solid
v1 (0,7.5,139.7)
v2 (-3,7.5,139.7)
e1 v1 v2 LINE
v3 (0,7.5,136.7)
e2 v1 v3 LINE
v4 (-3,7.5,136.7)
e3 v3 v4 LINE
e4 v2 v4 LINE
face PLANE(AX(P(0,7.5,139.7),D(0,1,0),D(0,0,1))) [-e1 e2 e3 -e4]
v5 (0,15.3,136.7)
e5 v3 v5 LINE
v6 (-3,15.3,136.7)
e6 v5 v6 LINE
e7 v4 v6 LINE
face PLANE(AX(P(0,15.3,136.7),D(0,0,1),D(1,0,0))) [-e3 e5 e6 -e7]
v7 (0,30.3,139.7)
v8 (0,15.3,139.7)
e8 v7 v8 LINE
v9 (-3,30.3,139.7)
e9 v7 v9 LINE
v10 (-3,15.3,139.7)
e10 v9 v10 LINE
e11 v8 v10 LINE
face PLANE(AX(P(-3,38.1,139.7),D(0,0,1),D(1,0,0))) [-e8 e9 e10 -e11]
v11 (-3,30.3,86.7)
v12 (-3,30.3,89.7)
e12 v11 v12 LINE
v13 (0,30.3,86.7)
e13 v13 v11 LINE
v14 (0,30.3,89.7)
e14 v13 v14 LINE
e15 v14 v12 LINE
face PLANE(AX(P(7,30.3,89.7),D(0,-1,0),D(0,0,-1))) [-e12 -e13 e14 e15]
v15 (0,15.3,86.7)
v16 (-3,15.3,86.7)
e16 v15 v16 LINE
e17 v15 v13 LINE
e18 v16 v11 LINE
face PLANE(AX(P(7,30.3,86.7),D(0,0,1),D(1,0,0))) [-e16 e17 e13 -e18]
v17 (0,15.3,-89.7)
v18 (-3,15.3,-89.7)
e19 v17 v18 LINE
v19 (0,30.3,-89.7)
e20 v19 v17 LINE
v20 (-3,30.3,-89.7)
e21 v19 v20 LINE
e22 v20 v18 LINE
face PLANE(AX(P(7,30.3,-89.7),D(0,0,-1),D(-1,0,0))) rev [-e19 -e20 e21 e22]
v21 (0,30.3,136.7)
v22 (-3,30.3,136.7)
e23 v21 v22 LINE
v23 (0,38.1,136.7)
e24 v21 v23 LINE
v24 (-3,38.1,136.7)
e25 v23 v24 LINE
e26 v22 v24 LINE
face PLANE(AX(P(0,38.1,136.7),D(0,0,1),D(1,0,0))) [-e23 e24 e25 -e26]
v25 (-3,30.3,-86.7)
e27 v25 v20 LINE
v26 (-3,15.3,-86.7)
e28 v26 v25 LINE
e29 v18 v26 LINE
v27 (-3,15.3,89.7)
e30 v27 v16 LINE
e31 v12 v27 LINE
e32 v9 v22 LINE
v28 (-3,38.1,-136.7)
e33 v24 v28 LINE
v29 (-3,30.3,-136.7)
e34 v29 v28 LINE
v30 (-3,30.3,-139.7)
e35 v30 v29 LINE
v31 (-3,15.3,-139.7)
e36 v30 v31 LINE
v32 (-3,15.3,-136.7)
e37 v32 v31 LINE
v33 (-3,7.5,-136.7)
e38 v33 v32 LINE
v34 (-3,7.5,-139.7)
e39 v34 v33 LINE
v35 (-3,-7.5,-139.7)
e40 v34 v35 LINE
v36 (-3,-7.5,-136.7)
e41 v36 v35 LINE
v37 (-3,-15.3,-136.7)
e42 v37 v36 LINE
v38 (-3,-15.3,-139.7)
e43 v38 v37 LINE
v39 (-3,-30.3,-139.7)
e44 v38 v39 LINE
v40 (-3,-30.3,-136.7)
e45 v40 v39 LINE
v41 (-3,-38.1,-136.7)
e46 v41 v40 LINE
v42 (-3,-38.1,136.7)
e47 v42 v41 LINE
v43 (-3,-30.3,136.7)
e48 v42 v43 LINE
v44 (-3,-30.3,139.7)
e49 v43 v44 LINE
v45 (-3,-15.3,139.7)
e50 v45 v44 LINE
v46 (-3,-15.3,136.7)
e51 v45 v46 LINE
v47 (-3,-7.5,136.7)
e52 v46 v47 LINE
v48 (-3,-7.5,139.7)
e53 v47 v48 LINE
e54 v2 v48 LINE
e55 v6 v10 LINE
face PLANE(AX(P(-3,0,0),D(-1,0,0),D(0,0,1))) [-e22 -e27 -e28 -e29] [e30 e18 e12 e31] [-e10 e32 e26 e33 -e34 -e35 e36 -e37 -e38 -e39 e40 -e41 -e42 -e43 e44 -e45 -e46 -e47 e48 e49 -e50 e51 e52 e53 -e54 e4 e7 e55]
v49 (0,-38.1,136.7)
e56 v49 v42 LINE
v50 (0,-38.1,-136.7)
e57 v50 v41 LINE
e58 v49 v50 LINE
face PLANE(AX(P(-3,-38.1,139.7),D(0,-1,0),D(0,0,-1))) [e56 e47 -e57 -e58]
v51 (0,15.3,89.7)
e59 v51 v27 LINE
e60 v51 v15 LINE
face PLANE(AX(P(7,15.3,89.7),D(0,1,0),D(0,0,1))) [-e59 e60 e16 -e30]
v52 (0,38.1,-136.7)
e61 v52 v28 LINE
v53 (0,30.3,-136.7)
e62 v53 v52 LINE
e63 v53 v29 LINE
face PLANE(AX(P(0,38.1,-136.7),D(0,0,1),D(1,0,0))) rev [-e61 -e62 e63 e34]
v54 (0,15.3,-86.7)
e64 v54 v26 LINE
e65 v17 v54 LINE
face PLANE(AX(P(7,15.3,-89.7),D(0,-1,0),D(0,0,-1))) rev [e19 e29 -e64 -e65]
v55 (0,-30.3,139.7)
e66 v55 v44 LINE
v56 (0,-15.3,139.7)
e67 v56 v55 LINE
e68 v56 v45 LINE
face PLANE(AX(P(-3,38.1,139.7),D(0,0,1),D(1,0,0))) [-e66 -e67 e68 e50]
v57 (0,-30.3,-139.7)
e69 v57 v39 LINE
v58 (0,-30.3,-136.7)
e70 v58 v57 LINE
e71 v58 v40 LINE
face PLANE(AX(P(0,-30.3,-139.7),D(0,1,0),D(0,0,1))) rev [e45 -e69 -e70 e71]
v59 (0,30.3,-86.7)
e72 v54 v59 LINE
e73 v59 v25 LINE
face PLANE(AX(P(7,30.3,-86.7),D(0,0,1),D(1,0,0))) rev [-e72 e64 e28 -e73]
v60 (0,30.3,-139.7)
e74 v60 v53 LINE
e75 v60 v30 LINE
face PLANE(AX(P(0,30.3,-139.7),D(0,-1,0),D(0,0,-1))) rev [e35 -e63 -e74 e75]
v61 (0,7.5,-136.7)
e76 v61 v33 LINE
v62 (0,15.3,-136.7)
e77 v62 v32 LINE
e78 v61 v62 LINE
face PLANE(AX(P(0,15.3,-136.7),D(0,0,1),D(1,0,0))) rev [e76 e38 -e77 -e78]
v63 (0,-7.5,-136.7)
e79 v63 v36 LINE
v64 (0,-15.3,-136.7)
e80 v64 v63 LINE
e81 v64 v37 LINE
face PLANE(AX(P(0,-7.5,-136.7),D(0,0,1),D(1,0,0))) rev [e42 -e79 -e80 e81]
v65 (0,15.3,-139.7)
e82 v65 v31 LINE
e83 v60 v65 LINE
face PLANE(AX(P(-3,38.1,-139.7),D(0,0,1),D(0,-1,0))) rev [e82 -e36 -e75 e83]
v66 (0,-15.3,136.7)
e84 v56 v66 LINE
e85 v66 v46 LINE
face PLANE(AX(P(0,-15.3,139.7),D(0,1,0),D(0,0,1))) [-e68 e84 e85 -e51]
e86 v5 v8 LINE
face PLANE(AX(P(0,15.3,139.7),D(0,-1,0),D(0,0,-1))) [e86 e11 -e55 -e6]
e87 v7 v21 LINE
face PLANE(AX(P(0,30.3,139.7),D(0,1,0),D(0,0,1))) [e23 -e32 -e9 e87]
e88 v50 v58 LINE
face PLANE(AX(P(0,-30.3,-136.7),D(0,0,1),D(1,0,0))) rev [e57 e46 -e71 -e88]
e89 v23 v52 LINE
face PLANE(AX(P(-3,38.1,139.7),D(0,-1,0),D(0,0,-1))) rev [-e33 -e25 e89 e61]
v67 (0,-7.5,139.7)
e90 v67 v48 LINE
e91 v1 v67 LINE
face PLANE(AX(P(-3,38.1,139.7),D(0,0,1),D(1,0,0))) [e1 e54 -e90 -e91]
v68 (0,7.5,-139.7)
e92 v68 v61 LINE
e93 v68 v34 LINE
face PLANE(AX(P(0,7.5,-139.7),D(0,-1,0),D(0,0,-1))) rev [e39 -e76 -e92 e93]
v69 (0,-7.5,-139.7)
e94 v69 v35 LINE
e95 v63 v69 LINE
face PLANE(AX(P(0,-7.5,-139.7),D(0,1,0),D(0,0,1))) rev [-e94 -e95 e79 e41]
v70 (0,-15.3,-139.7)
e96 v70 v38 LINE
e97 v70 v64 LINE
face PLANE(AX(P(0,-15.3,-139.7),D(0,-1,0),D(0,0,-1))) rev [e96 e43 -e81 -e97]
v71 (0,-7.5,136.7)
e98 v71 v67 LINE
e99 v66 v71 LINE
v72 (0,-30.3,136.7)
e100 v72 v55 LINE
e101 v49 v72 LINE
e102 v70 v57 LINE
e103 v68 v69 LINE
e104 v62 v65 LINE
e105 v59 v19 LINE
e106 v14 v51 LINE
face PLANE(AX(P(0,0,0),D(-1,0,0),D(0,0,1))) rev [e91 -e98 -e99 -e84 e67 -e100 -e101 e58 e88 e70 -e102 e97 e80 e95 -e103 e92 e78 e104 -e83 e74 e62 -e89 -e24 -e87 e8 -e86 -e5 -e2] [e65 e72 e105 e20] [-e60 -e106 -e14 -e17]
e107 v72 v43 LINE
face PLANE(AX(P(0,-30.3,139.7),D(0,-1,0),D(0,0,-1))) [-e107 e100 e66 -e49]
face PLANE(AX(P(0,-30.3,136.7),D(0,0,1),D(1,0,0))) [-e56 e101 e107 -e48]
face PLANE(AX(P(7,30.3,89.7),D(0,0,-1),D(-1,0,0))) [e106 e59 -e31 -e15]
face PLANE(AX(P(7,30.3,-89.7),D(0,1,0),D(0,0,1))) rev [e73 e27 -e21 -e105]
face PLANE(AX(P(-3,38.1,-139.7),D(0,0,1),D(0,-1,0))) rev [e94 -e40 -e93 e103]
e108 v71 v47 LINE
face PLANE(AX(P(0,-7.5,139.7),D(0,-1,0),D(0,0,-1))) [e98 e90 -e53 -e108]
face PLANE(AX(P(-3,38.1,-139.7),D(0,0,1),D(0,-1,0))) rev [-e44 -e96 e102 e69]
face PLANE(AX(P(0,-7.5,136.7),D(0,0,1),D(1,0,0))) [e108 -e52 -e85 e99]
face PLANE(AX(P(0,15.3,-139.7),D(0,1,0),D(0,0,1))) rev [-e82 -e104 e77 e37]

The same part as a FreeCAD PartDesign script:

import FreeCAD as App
import Part
import Sketcher
Q = App.Units.Quantity


def add_polygon(sketch, points):
    """Adds a closed chain of lines whose ends are joined by coincident constraints."""
    first, n = sketch.GeometryCount, len(points)
    for a, b in zip(points, points[1:] + points[:1]):
        sketch.addGeometry(Part.LineSegment(App.Vector(*a, 0), App.Vector(*b, 0)), False)
    for i in range(n):
        sketch.addConstraint(Sketcher.Constraint("Coincident", first + i, 2, first + (i + 1) % n, 1))

doc = App.newDocument("Part")
body = doc.addObject("PartDesign::Body", "Body")

# Sketch on YZ plane
sketch1 = body.newObject("Sketcher::SketchObject", "Sketch")
sketch1.AttachmentSupport = (doc.getObject("YZ_Plane"), [""])
sketch1.MapMode = "FlatFace"
add_polygon(sketch1, [(38.1, 139.7), (-38.1, 139.7), (-38.1, -139.7), (38.1, -139.7)])  # lines 0-3
sketch1.addConstraint(Sketcher.Constraint("Horizontal", 0))
sketch1.addConstraint(Sketcher.Constraint("Vertical", 1))
sketch1.addConstraint(Sketcher.Constraint("Horizontal", 2))
sketch1.addConstraint(Sketcher.Constraint("Vertical", 3))
sketch1.addConstraint(Sketcher.Constraint("Symmetric", 0, 2, 2, 2, -1, 1))
sketch1.addConstraint(Sketcher.Constraint("DistanceX", 0, 2, 0, 1, Q("76.2 mm")))
sketch1.addConstraint(Sketcher.Constraint("DistanceY", 1, 2, 1, 1, Q("279.4 mm")))
pad1 = body.newObject("PartDesign::Pad", "Pad")
pad1.Profile = sketch1
pad1.Length = 3
pad1.Reversed = True

# Sketch on YZ plane
sketch2 = body.newObject("Sketcher::SketchObject", "Sketch001")
sketch2.AttachmentSupport = (doc.getObject("YZ_Plane"), [""])
sketch2.MapMode = "FlatFace"
sketch2.AttachmentOffset = App.Placement(App.Vector(0, 0, -3), App.Rotation())
add_polygon(sketch2, [(38.1, -139.7), (30.3, -139.7), (30.3, -136.7), (38.1, -136.7)])  # lines 0-3
sketch2.addConstraint(Sketcher.Constraint("Horizontal", 0))
sketch2.addConstraint(Sketcher.Constraint("Vertical", 1))
sketch2.addConstraint(Sketcher.Constraint("Horizontal", 2))
sketch2.addConstraint(Sketcher.Constraint("Vertical", 3))
sketch2.addConstraint(Sketcher.Constraint("DistanceY", 1, 1, 1, 2, Q("3 mm")))
sketch2.addConstraint(Sketcher.Constraint("DistanceX", 0, 2, 0, 1, Q("7.8 mm")))
sketch2.addConstraint(Sketcher.Constraint("DistanceX", -1, 1, 0, 2, Q("30.3 mm")))
sketch2.addConstraint(Sketcher.Constraint("DistanceY", 0, 2, -1, 1, Q("139.7 mm")))
pocket1 = body.newObject("PartDesign::Pocket", "Pocket")
pocket1.Profile = sketch2
pocket1.Type = "ThroughAll"
pocket1.Reversed = True
doc.recompute()

linearpattern = body.newObject("PartDesign::LinearPattern", "LinearPattern")
linearpattern.Originals = [pocket1]
linearpattern.Direction = (doc.getObject("Y_Axis"), [""])
linearpattern.Mode = "offset"
linearpattern.Offset = 22.8
linearpattern.Occurrences = 4
linearpattern.Reversed = True
body.Tip = linearpattern
doc.recompute()

mirrored = body.newObject("PartDesign::Mirrored", "Mirrored")
mirrored.Originals = [pocket1]
mirrored.MirrorPlane = (doc.getObject("XY_Plane"), [""])
body.Tip = mirrored

# Sketch on YZ plane
sketch3 = body.newObject("Sketcher::SketchObject", "Sketch002")
sketch3.AttachmentSupport = (doc.getObject("YZ_Plane"), [""])
sketch3.MapMode = "FlatFace"
sketch3.AttachmentOffset = App.Placement(App.Vector(0, 0, -3), App.Rotation())
add_polygon(sketch3, [(7.5, 139.7), (15.3, 139.7), (15.3, 136.7), (7.5, 136.7)])  # lines 0-3
sketch3.addConstraint(Sketcher.Constraint("Horizontal", 0))
sketch3.addConstraint(Sketcher.Constraint("Vertical", 1))
sketch3.addConstraint(Sketcher.Constraint("Horizontal", 2))
sketch3.addConstraint(Sketcher.Constraint("Vertical", 3))
sketch3.addConstraint(Sketcher.Constraint("DistanceY", 1, 2, 1, 1, Q("3 mm")))
sketch3.addConstraint(Sketcher.Constraint("DistanceX", 0, 1, 0, 2, Q("7.8 mm")))
sketch3.addConstraint(Sketcher.Constraint("DistanceX", -1, 1, 0, 2, Q("15.3 mm")))
sketch3.addConstraint(Sketcher.Constraint("DistanceY", -1, 1, 0, 2, Q("139.7 mm")))
pocket2 = body.newObject("PartDesign::Pocket", "Pocket001")
pocket2.Profile = sketch3
pocket2.Type = "ThroughAll"
pocket2.Reversed = True

# Sketch on YZ plane
sketch4 = body.newObject("Sketcher::SketchObject", "Sketch003")
sketch4.AttachmentSupport = (doc.getObject("YZ_Plane"), [""])
sketch4.MapMode = "FlatFace"
sketch4.AttachmentOffset = App.Placement(App.Vector(0, 0, -3), App.Rotation())
add_polygon(sketch4, [(-15.3, 139.7), (-7.5, 139.7), (-7.5, 136.7), (-15.3, 136.7)])  # lines 0-3
sketch4.addConstraint(Sketcher.Constraint("Horizontal", 0))
sketch4.addConstraint(Sketcher.Constraint("Vertical", 1))
sketch4.addConstraint(Sketcher.Constraint("Horizontal", 2))
sketch4.addConstraint(Sketcher.Constraint("Vertical", 3))
sketch4.addConstraint(Sketcher.Constraint("DistanceY", 1, 2, 1, 1, Q("3 mm")))
sketch4.addConstraint(Sketcher.Constraint("DistanceX", 0, 1, 0, 2, Q("7.8 mm")))
sketch4.addConstraint(Sketcher.Constraint("DistanceX", 0, 2, -1, 1, Q("7.5 mm")))
sketch4.addConstraint(Sketcher.Constraint("DistanceY", -1, 1, 0, 2, Q("139.7 mm")))
pocket3 = body.newObject("PartDesign::Pocket", "Pocket002")
pocket3.Profile = sketch4
pocket3.Type = "ThroughAll"
pocket3.Reversed = True

# Sketch on YZ plane
sketch5 = body.newObject("Sketcher::SketchObject", "Sketch004")
sketch5.AttachmentSupport = (doc.getObject("YZ_Plane"), [""])
sketch5.MapMode = "FlatFace"
sketch5.AttachmentOffset = App.Placement(App.Vector(0, 0, -3), App.Rotation())
add_polygon(sketch5, [(-38.1, 139.7), (-30.3, 139.7), (-30.3, 136.7), (-38.1, 136.7)])  # lines 0-3
sketch5.addConstraint(Sketcher.Constraint("Horizontal", 0))
sketch5.addConstraint(Sketcher.Constraint("Vertical", 1))
sketch5.addConstraint(Sketcher.Constraint("Horizontal", 2))
sketch5.addConstraint(Sketcher.Constraint("Vertical", 3))
sketch5.addConstraint(Sketcher.Constraint("DistanceY", 1, 2, 1, 1, Q("3 mm")))
sketch5.addConstraint(Sketcher.Constraint("DistanceX", 0, 1, 0, 2, Q("7.8 mm")))
sketch5.addConstraint(Sketcher.Constraint("DistanceX", 0, 2, -1, 1, Q("30.3 mm")))
sketch5.addConstraint(Sketcher.Constraint("DistanceY", -1, 1, 0, 2, Q("139.7 mm")))
pocket4 = body.newObject("PartDesign::Pocket", "Pocket003")
pocket4.Profile = sketch5
pocket4.Type = "ThroughAll"
pocket4.Reversed = True

# Sketch on YZ plane
sketch6 = body.newObject("Sketcher::SketchObject", "Sketch005")
sketch6.AttachmentSupport = (doc.getObject("YZ_Plane"), [""])
sketch6.MapMode = "FlatFace"
sketch6.AttachmentOffset = App.Placement(App.Vector(0, 0, -3), App.Rotation())
add_polygon(sketch6, [(30.3, -89.7), (15.3, -89.7), (15.3, -86.7), (30.3, -86.7)])  # lines 0-3
sketch6.addConstraint(Sketcher.Constraint("Horizontal", 0))
sketch6.addConstraint(Sketcher.Constraint("Vertical", 1))
sketch6.addConstraint(Sketcher.Constraint("Horizontal", 2))
sketch6.addConstraint(Sketcher.Constraint("Vertical", 3))
sketch6.addConstraint(Sketcher.Constraint("DistanceX", 0, 2, 0, 1, Q("15 mm")))
sketch6.addConstraint(Sketcher.Constraint("DistanceY", 1, 1, 1, 2, Q("3 mm")))
sketch6.addConstraint(Sketcher.Constraint("DistanceX", -1, 1, 0, 2, Q("15.3 mm")))
sketch6.addConstraint(Sketcher.Constraint("DistanceY", 0, 2, -1, 1, Q("89.7 mm")))
pocket5 = body.newObject("PartDesign::Pocket", "Pocket004")
pocket5.Profile = sketch6
pocket5.Length = 10
pocket5.Reversed = True
doc.recompute()

mirrored2 = body.newObject("PartDesign::Mirrored", "Mirrored001")
mirrored2.Originals = [pocket5]
mirrored2.MirrorPlane = (doc.getObject("XY_Plane"), [""])
body.Tip = mirrored2

doc.recompute()
